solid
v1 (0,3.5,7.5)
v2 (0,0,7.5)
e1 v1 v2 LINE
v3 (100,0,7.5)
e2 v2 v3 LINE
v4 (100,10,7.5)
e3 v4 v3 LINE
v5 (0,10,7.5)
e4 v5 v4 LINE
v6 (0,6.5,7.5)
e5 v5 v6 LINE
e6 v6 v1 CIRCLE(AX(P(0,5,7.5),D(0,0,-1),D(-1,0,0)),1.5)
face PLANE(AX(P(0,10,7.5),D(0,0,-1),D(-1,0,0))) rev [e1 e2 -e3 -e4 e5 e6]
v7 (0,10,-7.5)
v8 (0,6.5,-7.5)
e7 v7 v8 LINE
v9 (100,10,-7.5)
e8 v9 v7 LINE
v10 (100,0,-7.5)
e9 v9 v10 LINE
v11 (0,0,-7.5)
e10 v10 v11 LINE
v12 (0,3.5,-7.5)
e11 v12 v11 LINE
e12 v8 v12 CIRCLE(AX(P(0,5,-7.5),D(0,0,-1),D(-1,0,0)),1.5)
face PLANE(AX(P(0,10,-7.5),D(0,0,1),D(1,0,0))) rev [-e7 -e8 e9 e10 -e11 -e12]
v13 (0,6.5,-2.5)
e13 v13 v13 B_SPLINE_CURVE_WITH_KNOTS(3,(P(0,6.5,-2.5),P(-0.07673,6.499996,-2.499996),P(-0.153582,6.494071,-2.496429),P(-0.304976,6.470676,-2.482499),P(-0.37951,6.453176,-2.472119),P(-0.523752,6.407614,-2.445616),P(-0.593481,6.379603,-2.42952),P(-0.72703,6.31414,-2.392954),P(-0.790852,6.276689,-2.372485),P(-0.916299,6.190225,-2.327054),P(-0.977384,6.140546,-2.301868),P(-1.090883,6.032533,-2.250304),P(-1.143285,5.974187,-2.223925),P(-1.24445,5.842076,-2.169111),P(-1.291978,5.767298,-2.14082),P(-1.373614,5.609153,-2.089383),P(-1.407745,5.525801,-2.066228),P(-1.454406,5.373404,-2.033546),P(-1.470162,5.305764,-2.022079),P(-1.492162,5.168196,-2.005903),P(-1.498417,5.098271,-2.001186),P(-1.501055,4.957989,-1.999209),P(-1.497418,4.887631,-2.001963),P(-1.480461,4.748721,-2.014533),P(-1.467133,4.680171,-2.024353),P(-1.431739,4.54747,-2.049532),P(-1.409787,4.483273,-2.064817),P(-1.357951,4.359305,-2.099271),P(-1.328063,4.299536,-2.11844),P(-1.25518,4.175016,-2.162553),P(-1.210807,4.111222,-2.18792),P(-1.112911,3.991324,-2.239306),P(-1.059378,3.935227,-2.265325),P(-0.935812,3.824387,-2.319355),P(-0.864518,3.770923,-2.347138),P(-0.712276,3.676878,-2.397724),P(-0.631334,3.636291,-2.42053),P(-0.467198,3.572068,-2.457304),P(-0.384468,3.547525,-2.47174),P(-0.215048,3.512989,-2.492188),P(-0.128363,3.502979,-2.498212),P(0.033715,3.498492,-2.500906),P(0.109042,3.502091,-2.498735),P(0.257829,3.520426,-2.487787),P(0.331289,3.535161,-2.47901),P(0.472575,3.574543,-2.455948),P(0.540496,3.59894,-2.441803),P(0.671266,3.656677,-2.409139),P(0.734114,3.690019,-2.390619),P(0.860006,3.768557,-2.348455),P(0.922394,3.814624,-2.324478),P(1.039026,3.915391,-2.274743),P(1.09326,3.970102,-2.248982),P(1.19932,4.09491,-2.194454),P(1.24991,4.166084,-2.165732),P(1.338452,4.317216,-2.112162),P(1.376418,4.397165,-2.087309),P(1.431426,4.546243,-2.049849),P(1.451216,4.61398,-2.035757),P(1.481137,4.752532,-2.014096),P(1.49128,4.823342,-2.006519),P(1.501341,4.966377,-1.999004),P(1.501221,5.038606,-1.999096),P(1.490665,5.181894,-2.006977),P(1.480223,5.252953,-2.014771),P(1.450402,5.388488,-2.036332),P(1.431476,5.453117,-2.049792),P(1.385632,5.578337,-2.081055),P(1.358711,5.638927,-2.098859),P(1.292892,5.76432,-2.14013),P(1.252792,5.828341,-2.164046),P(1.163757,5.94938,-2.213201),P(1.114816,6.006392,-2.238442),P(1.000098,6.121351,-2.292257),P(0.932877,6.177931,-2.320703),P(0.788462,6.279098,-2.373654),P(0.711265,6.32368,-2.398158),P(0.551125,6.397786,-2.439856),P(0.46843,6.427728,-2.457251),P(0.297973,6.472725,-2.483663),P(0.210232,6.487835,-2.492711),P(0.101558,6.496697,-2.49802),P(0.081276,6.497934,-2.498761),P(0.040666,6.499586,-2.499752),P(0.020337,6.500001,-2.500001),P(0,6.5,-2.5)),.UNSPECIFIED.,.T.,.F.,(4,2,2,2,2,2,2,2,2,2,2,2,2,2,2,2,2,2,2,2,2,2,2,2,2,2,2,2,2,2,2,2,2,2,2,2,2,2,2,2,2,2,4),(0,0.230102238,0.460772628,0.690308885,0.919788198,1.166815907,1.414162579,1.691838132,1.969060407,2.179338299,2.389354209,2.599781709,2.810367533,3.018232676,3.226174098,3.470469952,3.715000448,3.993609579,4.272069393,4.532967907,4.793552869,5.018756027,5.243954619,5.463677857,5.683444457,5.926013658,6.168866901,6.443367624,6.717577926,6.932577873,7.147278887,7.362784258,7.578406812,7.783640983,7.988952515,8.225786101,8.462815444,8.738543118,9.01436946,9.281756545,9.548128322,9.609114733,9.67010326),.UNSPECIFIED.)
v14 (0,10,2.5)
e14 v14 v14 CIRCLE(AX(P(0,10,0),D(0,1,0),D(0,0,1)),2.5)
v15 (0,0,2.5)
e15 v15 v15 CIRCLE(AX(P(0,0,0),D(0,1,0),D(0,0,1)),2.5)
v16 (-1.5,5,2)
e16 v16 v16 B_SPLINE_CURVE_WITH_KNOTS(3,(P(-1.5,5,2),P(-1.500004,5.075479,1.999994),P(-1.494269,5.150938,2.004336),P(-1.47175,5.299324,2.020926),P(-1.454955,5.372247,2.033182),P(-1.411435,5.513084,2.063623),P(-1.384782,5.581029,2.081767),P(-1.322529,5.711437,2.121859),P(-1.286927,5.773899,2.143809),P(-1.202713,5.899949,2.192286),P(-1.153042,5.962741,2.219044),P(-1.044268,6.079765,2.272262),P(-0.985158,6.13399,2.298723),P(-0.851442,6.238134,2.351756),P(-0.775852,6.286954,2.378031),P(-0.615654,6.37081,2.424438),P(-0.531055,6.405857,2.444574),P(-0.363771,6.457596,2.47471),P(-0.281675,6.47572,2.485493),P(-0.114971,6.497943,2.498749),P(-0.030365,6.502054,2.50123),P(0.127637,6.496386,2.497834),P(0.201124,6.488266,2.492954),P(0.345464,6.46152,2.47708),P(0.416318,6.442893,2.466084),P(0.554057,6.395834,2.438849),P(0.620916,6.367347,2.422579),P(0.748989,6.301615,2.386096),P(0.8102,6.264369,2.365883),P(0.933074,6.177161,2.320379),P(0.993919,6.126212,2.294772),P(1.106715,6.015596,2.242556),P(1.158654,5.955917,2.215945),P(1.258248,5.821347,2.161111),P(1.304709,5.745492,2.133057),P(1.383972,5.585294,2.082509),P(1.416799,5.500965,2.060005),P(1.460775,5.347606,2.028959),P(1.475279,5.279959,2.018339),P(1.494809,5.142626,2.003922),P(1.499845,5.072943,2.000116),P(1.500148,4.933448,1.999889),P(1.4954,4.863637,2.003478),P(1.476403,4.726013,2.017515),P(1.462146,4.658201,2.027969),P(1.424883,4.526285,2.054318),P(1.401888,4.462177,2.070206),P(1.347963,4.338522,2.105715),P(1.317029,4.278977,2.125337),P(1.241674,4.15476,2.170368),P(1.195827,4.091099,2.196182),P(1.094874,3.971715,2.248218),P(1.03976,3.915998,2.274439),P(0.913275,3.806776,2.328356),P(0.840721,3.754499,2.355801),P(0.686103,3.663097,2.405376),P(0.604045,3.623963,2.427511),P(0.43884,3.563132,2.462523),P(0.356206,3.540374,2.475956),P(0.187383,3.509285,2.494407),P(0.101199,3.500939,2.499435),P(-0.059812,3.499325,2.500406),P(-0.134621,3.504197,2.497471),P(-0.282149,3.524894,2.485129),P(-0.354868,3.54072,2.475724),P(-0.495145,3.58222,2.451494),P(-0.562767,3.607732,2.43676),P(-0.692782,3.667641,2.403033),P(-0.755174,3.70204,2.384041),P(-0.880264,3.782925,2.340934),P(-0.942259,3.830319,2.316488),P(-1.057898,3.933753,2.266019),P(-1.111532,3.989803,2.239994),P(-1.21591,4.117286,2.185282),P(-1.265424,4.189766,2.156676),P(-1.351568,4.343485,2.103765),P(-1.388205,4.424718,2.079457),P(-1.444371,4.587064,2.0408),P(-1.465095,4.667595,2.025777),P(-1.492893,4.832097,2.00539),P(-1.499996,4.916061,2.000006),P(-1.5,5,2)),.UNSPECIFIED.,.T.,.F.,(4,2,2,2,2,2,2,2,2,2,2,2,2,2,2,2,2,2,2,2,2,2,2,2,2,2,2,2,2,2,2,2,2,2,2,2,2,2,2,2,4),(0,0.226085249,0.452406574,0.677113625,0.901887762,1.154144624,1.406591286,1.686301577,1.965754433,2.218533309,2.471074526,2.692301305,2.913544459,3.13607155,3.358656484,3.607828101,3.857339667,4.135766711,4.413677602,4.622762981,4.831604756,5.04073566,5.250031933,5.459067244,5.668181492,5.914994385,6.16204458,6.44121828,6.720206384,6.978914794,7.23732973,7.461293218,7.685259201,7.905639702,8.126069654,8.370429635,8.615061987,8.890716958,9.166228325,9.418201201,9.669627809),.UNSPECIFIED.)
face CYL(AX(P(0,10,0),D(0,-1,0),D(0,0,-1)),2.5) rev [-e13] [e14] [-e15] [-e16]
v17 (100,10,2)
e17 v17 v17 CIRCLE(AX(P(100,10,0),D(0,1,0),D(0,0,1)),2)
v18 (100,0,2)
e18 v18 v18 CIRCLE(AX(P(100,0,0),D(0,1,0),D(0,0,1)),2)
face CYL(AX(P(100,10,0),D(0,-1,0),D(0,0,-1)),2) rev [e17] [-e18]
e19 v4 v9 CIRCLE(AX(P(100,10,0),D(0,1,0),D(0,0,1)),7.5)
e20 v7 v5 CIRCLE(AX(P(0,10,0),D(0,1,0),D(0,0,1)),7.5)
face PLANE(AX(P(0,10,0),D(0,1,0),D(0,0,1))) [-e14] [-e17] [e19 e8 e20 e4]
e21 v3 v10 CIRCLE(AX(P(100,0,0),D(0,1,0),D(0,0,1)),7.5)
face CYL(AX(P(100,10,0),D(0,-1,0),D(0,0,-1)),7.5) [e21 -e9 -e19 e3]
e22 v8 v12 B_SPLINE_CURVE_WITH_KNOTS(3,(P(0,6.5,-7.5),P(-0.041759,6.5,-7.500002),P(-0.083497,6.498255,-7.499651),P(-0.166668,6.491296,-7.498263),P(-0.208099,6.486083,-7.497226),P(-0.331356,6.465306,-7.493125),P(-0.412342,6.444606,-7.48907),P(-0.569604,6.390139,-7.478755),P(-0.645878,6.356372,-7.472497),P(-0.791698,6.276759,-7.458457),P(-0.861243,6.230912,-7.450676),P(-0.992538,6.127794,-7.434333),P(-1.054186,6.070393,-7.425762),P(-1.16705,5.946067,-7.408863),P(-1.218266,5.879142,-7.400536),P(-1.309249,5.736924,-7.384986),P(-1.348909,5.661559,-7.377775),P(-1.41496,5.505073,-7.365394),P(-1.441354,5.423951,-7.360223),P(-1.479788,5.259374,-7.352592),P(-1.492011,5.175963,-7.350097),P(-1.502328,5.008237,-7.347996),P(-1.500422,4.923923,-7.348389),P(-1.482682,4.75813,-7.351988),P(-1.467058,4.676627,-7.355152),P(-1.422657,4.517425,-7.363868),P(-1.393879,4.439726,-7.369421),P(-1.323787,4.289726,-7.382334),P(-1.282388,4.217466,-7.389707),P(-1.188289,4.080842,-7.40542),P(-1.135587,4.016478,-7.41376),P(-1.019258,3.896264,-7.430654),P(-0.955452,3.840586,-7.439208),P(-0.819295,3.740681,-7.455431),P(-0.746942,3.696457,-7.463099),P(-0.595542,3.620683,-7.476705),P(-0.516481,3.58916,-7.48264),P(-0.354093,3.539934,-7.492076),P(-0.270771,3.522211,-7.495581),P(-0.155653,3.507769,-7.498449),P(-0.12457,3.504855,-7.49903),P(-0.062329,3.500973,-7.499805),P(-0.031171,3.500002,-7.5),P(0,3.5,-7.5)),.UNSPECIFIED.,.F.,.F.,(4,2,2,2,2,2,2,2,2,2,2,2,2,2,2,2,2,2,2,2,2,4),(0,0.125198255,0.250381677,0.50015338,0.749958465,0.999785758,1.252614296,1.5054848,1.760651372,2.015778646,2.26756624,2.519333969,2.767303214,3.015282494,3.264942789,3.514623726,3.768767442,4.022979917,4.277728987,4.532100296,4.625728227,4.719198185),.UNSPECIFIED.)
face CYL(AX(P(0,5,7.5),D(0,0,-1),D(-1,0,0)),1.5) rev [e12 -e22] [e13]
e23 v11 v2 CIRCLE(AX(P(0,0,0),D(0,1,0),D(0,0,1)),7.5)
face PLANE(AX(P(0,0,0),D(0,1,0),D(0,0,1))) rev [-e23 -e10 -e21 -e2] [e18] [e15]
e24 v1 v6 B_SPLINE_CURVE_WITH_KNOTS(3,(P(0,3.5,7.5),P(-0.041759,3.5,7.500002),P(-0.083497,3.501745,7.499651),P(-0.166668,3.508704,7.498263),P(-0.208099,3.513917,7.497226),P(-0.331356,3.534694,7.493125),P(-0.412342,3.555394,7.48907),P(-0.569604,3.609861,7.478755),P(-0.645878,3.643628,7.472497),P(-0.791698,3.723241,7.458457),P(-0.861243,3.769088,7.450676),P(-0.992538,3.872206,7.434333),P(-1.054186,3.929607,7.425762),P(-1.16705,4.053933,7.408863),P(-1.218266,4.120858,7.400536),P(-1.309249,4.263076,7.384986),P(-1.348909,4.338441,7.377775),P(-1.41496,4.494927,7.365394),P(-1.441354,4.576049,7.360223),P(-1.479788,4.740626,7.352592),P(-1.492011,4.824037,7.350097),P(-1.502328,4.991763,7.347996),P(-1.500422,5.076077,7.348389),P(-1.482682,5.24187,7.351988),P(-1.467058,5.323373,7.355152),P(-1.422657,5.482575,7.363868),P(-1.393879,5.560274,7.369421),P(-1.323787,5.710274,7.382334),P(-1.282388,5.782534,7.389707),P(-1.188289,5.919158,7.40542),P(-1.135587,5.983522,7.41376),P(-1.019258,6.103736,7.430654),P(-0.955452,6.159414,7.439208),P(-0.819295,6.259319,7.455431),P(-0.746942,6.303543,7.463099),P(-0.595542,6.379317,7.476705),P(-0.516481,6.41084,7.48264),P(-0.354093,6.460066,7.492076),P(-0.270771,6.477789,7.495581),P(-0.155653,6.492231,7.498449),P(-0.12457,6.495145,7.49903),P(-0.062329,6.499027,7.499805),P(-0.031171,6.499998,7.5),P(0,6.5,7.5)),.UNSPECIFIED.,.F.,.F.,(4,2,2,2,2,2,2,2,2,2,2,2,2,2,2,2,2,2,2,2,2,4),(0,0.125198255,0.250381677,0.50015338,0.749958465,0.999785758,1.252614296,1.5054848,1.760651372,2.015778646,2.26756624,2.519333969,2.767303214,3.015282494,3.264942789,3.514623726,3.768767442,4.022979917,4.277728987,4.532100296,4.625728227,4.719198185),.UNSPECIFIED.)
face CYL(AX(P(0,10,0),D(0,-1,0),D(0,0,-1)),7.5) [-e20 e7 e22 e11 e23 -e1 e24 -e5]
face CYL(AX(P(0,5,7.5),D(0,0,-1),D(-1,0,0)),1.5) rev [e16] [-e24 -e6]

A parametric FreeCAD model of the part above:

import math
import FreeCAD as App
import Part
import Sketcher

V = App.Vector

doc = App.newDocument("Part")
body = doc.addObject("PartDesign::Body", "Body")

sketch1 = body.newObject("Sketcher::SketchObject", "Sketch")
sketch1.AttachmentSupport = (doc.getObject("XZ_Plane"), [""])
sketch1.MapMode = "FlatFace"
sketch1.addGeometry(Part.LineSegment(V(100, -7.5, 0), V(0, -7.5, 0)), False)
sketch1.addGeometry(Part.ArcOfCircle(Part.Circle(V(0, 0, 0), V(0, 0, 1), 7.5), math.radians(90), math.radians(270)), False)
sketch1.addGeometry(Part.LineSegment(V(0, 7.5, 0), V(100, 7.5, 0)), False)
sketch1.addGeometry(Part.ArcOfCircle(Part.Circle(V(100, 0, 0), V(0, 0, 1), 7.5), math.radians(-90), math.radians(90)), False)
sketch1.addGeometry(Part.Circle(V(100, 0, 0), V(0, 0, 1), 2), False)
sketch1.addGeometry(Part.Circle(V(0, 0, 0), V(0, 0, 1), 2.5), False)
sketch1.addConstraint(Sketcher.Constraint("Tangent", 0, 2, 1, 2))
sketch1.addConstraint(Sketcher.Constraint("Tangent", 1, 1, 2, 1))
sketch1.addConstraint(Sketcher.Constraint("Tangent", 2, 2, 3, 2))
sketch1.addConstraint(Sketcher.Constraint("Tangent", 3, 1, 0, 1))
sketch1.addConstraint(Sketcher.Constraint("Horizontal", 0))
sketch1.addConstraint(Sketcher.Constraint("Horizontal", 2))
sketch1.addConstraint(Sketcher.Constraint("Coincident", 1, 3, -1, 1))
sketch1.addConstraint(Sketcher.Constraint("Coincident", 5, 3, -1, 1))
sketch1.addConstraint(Sketcher.Constraint("Coincident", 4, 3, 3, 3))
sketch1.addConstraint(Sketcher.Constraint("Diameter", 4, 4.0))
sketch1.addConstraint(Sketcher.Constraint("Diameter", 5, 5.0))
sketch1.addConstraint(Sketcher.Constraint("Radius", 1, 7.5))
sketch1.addConstraint(Sketcher.Constraint("DistanceX", 0, 2, 0, 1, 100.0))
pad1 = body.newObject("PartDesign::Pad", "Pad")
pad1.Profile = sketch1
pad1.Length = 10
pad1.Reversed = True

sketch2 = body.newObject("Sketcher::SketchObject", "Sketch001")
sketch2.AttachmentSupport = (doc.getObject("XY_Plane"), [""])
sketch2.MapMode = "FlatFace"
sketch2.AttachmentOffset = App.Placement(V(0, 0, -7.5), App.Rotation())
sketch2.addGeometry(Part.Circle(V(0, 5, 0), V(0, 0, 1), 1.5), False)
sketch2.addConstraint(Sketcher.Constraint("PointOnObject", 0, 3, -2))
sketch2.addConstraint(Sketcher.Constraint("Diameter", 0, 3.0))
sketch2.addConstraint(Sketcher.Constraint("DistanceY", -1, 1, 0, 3, 5.0))
pocket1 = body.newObject("PartDesign::Pocket", "Pocket")
pocket1.Profile = sketch2
pocket1.Type = "ThroughAll"
pocket1.Reversed = True

doc.recompute()
